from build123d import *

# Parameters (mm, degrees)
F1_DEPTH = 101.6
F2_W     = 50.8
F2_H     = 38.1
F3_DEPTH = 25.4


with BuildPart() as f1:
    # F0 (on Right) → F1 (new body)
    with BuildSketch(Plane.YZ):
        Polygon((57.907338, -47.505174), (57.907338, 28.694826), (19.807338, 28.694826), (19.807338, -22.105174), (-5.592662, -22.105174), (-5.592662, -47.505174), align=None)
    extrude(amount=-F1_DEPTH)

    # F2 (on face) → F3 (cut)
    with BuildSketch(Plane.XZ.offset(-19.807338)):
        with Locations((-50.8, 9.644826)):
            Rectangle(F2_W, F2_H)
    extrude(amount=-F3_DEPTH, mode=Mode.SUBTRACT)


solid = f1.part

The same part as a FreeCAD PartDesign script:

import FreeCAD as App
import Part
import Sketcher
from FreeCAD import Vector
Q = App.Units.Quantity


def add_polygon(sketch, points):
    """Adds a closed chain of lines whose ends are joined by coincident constraints."""
    first, n = sketch.GeometryCount, len(points)
    for a, b in zip(points, points[1:] + points[:1]):
        sketch.addGeometry(Part.LineSegment(App.Vector(*a, 0), App.Vector(*b, 0)), False)
    for i in range(n):
        sketch.addConstraint(Sketcher.Constraint("Coincident", first + i, 2, first + (i + 1) % n, 1))

doc = App.newDocument("Part")
body = doc.addObject("PartDesign::Body", "Body")

sketch1 = body.newObject("Sketcher::SketchObject", "Sketch")
sketch1.AttachmentSupport = (doc.getObject("YZ_Plane"), [""])
sketch1.MapMode = "FlatFace"
add_polygon(sketch1, [(58, -48), (58, 29), (20, 29), (20, -22), (-6, -22), (-6, -48)])
sketch1.addConstraint(Sketcher.Constraint("Vertical", 0))
sketch1.addConstraint(Sketcher.Constraint("Horizontal", 1))
sketch1.addConstraint(Sketcher.Constraint("Vertical", 2))
sketch1.addConstraint(Sketcher.Constraint("Horizontal", 3))
sketch1.addConstraint(Sketcher.Constraint("Vertical", 4))
sketch1.addConstraint(Sketcher.Constraint("Horizontal", 5))
sketch1.addConstraint(Sketcher.Constraint("Equal", 3, 4))
sketch1.addConstraint(Sketcher.Constraint("DistanceX", 3, 2, 3, 1, Q("1 in")))
sketch1.addConstraint(Sketcher.Constraint("DistanceY", 0, 1, 0, 2, Q("3 in")))
sketch1.addConstraint(Sketcher.Constraint("DistanceX", 1, 2, 1, 1, Q("1.5 in")))
sketch1.addConstraint(Sketcher.Constraint("DistanceX", -1, 1, 0, 2, 57.907338))
sketch1.addConstraint(Sketcher.Constraint("DistanceY", -1, 1, 0, 2, 28.694826))
pad1 = body.newObject("PartDesign::Pad", "Pad")
pad1.Profile = sketch1
pad1.Length = Q("4 in")
pad1.Reversed = True

sketch2 = body.newObject("Sketcher::SketchObject", "Sketch001")
sketch2.AttachmentSupport = (doc.getObject("XZ_Plane"), [""])
sketch2.MapMode = "FlatFace"
sketch2.AttachmentOffset = App.Placement(Vector(0, 0, -19.807338), App.Rotation())
add_polygon(sketch2, [(-76, 29), (-76, -9), (-25, -9), (-25, 29)])
sketch2.addConstraint(Sketcher.Constraint("Vertical", 0))
sketch2.addConstraint(Sketcher.Constraint("Horizontal", 1))
sketch2.addConstraint(Sketcher.Constraint("Vertical", 2))
sketch2.addConstraint(Sketcher.Constraint("Horizontal", 3))
sketch2.addConstraint(Sketcher.Constraint("DistanceX", 1, 1, 1, 2, Q("2 in")))
sketch2.addConstraint(Sketcher.Constraint("DistanceY", 0, 2, 0, 1, Q("1.5 in")))
sketch2.addConstraint(Sketcher.Constraint("DistanceX", 0, 2, -1, 1, Q("3 in")))
sketch2.addConstraint(Sketcher.Constraint("DistanceY", 0, 2, -1, 1, 9.405174))
pocket1 = body.newObject("PartDesign::Pocket", "Pocket")
pocket1.Profile = sketch2
pocket1.Length = Q("1 in")

doc.recompute()
